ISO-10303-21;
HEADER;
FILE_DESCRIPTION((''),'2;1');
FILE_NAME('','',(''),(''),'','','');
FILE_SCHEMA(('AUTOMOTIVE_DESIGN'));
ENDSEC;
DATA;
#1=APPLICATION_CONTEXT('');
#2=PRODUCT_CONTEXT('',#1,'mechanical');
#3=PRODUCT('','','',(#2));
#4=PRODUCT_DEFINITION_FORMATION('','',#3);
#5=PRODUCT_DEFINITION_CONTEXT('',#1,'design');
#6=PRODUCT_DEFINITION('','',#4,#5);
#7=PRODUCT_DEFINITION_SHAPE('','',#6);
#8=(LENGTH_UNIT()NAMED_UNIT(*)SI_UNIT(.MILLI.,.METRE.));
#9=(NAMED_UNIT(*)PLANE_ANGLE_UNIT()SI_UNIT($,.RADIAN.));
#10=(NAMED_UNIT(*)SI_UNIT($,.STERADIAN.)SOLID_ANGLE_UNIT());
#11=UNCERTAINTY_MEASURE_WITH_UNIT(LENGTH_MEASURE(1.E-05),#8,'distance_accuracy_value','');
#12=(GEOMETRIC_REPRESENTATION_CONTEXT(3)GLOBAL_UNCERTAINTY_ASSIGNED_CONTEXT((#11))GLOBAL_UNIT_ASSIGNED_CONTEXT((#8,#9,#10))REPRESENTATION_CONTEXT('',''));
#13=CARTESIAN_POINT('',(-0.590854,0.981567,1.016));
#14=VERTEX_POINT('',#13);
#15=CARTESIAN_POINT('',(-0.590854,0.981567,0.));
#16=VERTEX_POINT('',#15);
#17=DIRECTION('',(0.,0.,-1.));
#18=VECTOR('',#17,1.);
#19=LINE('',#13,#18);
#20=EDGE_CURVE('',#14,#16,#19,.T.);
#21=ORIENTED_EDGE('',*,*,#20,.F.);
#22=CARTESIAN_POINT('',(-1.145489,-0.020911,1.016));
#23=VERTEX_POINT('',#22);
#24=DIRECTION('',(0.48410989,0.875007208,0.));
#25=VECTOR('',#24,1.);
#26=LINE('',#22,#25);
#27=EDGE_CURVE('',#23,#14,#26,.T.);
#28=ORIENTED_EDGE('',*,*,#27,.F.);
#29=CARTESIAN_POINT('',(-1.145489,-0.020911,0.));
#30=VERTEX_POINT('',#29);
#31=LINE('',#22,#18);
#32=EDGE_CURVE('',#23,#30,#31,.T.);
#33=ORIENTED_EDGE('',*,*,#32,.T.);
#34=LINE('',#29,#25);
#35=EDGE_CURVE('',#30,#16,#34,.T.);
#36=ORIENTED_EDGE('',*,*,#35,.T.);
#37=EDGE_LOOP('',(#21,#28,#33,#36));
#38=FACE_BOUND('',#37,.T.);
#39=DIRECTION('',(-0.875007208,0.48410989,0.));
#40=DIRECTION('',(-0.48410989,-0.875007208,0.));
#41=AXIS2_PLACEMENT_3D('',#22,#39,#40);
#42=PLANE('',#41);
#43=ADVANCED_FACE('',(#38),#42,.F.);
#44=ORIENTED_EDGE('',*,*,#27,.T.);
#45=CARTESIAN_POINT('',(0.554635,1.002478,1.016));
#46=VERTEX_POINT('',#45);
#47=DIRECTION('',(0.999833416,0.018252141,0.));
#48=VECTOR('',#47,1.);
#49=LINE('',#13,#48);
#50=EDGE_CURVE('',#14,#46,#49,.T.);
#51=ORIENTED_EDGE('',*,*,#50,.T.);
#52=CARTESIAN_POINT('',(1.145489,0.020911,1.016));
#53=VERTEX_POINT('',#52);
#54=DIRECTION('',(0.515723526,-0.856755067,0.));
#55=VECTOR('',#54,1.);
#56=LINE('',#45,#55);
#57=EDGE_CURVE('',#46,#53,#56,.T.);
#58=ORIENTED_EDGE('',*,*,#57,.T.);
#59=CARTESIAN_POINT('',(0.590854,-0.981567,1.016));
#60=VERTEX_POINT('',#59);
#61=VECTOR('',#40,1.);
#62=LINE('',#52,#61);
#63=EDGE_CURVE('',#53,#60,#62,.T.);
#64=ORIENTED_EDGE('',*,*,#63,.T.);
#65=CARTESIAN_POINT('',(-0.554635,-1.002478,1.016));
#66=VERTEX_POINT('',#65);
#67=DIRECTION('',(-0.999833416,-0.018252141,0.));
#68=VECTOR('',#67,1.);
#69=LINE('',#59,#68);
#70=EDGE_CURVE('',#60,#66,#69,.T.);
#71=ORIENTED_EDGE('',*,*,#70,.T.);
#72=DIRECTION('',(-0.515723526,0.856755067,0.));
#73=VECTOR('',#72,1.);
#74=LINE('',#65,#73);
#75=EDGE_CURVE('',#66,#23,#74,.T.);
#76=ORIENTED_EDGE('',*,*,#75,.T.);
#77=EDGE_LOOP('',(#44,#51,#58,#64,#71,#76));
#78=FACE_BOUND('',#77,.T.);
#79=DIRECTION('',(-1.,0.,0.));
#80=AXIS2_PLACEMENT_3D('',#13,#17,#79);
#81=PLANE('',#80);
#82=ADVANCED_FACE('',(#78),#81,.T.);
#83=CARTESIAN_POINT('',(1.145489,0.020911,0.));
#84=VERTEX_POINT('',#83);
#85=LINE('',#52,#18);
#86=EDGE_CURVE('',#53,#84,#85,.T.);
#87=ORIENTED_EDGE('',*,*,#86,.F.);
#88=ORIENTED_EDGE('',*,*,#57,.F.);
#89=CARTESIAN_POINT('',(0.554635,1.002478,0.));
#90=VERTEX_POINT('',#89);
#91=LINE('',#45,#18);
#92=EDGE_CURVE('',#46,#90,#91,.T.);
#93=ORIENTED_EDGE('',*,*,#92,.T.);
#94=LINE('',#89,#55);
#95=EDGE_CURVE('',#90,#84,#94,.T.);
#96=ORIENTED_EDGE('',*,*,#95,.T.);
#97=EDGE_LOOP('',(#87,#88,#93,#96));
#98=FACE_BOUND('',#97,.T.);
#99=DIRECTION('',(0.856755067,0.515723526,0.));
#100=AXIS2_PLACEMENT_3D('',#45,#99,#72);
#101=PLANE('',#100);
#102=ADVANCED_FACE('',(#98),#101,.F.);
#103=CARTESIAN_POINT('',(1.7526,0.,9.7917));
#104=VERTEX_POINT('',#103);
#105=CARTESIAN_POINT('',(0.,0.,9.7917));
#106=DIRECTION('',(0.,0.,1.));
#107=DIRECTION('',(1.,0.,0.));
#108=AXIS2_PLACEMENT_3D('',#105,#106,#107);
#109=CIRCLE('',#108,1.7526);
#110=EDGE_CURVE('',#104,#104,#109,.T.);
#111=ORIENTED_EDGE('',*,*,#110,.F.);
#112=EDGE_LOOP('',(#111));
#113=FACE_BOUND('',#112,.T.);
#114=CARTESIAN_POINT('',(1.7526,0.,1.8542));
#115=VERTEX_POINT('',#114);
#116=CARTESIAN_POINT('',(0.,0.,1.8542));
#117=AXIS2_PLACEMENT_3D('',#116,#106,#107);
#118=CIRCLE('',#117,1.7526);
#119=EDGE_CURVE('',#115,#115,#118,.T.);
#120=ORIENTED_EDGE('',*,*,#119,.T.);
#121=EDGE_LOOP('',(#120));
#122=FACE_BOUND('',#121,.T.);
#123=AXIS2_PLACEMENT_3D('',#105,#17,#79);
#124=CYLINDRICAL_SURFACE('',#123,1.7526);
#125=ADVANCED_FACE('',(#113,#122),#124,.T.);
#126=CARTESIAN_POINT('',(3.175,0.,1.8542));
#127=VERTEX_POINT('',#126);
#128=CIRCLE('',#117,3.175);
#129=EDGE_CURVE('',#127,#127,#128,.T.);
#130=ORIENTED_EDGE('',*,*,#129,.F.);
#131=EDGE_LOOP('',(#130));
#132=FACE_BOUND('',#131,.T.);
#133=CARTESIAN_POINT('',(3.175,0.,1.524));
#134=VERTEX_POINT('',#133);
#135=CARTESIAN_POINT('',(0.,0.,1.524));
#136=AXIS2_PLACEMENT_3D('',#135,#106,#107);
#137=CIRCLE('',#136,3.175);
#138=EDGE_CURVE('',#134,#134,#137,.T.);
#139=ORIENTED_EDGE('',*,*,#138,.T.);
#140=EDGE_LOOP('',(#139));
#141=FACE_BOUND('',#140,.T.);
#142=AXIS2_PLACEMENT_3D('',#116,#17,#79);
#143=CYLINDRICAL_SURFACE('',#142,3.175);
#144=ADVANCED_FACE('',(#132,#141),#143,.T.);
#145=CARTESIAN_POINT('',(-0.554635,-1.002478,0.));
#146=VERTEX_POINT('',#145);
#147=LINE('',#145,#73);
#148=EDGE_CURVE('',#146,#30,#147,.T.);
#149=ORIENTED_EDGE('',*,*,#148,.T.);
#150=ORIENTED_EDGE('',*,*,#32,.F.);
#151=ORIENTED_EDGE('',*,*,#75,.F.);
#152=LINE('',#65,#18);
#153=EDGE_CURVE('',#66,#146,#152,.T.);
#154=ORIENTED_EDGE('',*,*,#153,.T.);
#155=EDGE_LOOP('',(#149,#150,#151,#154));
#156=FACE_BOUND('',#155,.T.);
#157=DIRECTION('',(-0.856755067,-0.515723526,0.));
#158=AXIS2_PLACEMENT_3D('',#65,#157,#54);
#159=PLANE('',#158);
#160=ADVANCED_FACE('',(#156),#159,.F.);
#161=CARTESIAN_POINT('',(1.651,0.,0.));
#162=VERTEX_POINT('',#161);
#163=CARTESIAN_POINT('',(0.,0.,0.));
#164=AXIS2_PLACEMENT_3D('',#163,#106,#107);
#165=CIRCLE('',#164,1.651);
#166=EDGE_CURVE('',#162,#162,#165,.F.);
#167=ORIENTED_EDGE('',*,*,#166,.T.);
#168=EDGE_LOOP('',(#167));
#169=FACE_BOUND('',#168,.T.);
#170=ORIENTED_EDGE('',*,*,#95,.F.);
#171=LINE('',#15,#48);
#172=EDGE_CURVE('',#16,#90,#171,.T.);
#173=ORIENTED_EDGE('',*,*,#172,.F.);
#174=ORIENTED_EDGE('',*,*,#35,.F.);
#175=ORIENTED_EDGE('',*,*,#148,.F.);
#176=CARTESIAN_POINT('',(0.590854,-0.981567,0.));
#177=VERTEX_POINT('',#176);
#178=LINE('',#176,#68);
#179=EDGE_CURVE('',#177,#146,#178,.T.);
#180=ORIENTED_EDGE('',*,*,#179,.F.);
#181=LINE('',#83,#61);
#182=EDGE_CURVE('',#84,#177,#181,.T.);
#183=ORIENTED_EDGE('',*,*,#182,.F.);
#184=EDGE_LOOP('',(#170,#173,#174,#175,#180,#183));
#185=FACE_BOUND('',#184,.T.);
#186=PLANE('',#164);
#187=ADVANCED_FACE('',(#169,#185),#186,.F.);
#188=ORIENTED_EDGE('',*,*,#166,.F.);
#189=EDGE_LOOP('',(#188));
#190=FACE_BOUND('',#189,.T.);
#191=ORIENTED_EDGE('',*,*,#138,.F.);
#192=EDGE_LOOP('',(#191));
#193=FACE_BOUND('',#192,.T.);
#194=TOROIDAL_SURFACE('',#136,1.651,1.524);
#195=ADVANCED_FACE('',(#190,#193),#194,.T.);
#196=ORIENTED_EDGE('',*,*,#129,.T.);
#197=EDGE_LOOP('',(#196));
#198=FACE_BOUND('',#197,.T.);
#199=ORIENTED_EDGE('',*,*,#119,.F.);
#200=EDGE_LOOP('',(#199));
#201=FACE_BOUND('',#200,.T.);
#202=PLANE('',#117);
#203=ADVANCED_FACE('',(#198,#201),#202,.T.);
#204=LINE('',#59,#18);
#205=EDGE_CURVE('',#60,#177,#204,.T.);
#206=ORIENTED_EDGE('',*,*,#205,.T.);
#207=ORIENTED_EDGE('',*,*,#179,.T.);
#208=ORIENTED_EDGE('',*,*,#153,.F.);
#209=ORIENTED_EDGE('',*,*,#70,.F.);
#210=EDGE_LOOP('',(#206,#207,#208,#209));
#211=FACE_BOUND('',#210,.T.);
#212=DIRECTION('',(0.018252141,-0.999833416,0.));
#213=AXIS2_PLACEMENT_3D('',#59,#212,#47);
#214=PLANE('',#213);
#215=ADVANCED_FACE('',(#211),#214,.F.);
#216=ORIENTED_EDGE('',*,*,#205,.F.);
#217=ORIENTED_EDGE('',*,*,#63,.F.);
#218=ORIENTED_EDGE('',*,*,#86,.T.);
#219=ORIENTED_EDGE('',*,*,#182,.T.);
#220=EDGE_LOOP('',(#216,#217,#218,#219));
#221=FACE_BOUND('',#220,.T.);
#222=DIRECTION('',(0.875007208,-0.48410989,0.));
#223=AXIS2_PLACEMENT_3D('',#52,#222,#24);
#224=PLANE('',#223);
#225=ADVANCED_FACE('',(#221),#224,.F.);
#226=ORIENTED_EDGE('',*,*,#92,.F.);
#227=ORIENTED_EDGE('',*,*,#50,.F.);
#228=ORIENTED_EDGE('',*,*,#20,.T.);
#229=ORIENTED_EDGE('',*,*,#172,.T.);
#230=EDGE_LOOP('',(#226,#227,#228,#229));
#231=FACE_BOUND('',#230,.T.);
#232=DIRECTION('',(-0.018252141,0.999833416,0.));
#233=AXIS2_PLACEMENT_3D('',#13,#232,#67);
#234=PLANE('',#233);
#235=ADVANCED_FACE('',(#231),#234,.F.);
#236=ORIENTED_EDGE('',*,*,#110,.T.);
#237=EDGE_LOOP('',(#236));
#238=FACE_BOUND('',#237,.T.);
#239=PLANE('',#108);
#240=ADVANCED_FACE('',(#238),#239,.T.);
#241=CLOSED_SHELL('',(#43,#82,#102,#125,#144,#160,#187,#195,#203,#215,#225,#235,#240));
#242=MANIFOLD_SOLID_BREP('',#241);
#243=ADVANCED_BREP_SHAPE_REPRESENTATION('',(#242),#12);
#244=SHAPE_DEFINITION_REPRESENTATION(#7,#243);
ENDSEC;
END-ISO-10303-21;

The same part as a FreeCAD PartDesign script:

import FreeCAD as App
import Part
import Sketcher
from FreeCAD import Vector
Q = App.Units.Quantity


def edges_at(feature, points):
    """Names of the edges that pass closest to the given points."""
    edges = feature.Shape.Edges
    near = lambda p: min(range(len(edges)), key=lambda i: edges[i].distToShape(Part.Vertex(*p))[0])
    return sorted({f"Edge{near(p) + 1}" for p in points})

doc = App.newDocument("Part")
params = doc.addObject("Spreadsheet::Sheet", "Params")
for row, (alias, value) in enumerate([
    ("sketch1_diameter", "0.25 in"),
    ("pad1_length", "0.073 in"),
    ("fillet_radius", "0.06 in"),
    ("sketch2_diameter", "0.138 in"),
    ("pad2_length", "0.3125 in"),
    ("pocket1_length", "0.04 in"),
], start=1):
    params.set(f"A{row}", alias)
    params.set(f"B{row}", "=" + value)
    params.setAlias(f"B{row}", alias)

body = doc.addObject("PartDesign::Body", "Body")

# Sketch on XY plane
sketch1 = body.newObject("Sketcher::SketchObject", "Sketch")
sketch1.AttachmentSupport = (doc.getObject("XY_Plane"), [""])
sketch1.MapMode = "FlatFace"
sketch1.addGeometry(Part.Circle(Vector(0, 0, 0), Vector(0, 0, 1), 3.2), False)
sketch1.addConstraint([
    Sketcher.Constraint("Coincident", 0, 3, -1, 1),
    Sketcher.Constraint("Diameter", 0, Q("0.25 in")),
])
sketch1.setExpression("Constraints[1]", "Params.sketch1_diameter")
pad1 = body.newObject("PartDesign::Pad", "Pad")
pad1.Profile = sketch1
pad1.setExpression("Length", "Params.pad1_length")
doc.recompute()

fillet = body.newObject("PartDesign::Fillet", "Fillet")
fillet.Base = (pad1, edges_at(pad1, [(-3.175, 0, 0)]))
fillet.setExpression("Radius", "Params.fillet_radius")

# Sketch on XY plane
sketch2 = body.newObject("Sketcher::SketchObject", "Sketch001")
sketch2.AttachmentSupport = (doc.getObject("XY_Plane"), [""])
sketch2.MapMode = "FlatFace"
sketch2.AttachmentOffset = App.Placement(Vector(0, 0, 0.073 * 25.4), App.Rotation())
sketch2.addGeometry(Part.Circle(Vector(0, 0, 0), Vector(0, 0, 1), 1.8), False)
sketch2.addConstraint([
    Sketcher.Constraint("Coincident", 0, 3, -1, 1),
    Sketcher.Constraint("Diameter", 0, Q("0.138 in")),
])
sketch2.setExpression("Constraints[1]", "Params.sketch2_diameter")
pad2 = body.newObject("PartDesign::Pad", "Pad001")
pad2.Profile = sketch2
pad2.setExpression("Length", "Params.pad2_length")

# Sketch on XY plane
sketch3 = body.newObject("Sketcher::SketchObject", "Sketch002")
sketch3.AttachmentSupport = (doc.getObject("XY_Plane"), [""])
sketch3.MapMode = "FlatFace"
sketch3.addGeometry([
    Part.LineSegment(Vector(-0.6, 1, 0), Vector(0.6, 1, 0)),  # 0
    Part.LineSegment(Vector(0.6, 1, 0), Vector(1.1, 0, 0)),  # 1
    Part.LineSegment(Vector(1.1, 0, 0), Vector(0.6, -1, 0)),  # 2
    Part.LineSegment(Vector(0.6, -1, 0), Vector(-0.6, -1, 0)),  # 3
    Part.LineSegment(Vector(-0.6, -1, 0), Vector(-1.1, 0, 0)),  # 4
    Part.LineSegment(Vector(-1.1, 0, 0), Vector(-0.6, 1, 0)),  # 5
], False)
sketch3.addConstraint([
    Sketcher.Constraint("Coincident", 0, 2, 1, 1),
    Sketcher.Constraint("Coincident", 1, 2, 2, 1),
    Sketcher.Constraint("Coincident", 2, 2, 3, 1),
    Sketcher.Constraint("Coincident", 3, 2, 4, 1),
    Sketcher.Constraint("Coincident", 4, 2, 5, 1),
    Sketcher.Constraint("Coincident", 5, 2, 0, 1),
    Sketcher.Constraint("Symmetric", 0, 2, 3, 2, -1, 1),
    Sketcher.Constraint("Symmetric", 1, 2, 4, 2, -1, 1),
    Sketcher.Constraint("Symmetric", 2, 2, 5, 2, -1, 1),
    Sketcher.Constraint("Equal", 0, 1),
    Sketcher.Constraint("Equal", 1, 2),
    Sketcher.Constraint("Distance", 0, 1.145679),
    Sketcher.Constraint("DistanceX", -1, 1, 1, 2, 1.145489),
    Sketcher.Constraint("DistanceY", -1, 1, 1, 2, 0.020911),
    Sketcher.Constraint("DistanceX", 0, 2, 2, 2, 0.036219),
])
pocket1 = body.newObject("PartDesign::Pocket", "Pocket")
pocket1.Profile = sketch3
pocket1.setExpression("Length", "Params.pocket1_length")
pocket1.Reversed = True

doc.recompute()
